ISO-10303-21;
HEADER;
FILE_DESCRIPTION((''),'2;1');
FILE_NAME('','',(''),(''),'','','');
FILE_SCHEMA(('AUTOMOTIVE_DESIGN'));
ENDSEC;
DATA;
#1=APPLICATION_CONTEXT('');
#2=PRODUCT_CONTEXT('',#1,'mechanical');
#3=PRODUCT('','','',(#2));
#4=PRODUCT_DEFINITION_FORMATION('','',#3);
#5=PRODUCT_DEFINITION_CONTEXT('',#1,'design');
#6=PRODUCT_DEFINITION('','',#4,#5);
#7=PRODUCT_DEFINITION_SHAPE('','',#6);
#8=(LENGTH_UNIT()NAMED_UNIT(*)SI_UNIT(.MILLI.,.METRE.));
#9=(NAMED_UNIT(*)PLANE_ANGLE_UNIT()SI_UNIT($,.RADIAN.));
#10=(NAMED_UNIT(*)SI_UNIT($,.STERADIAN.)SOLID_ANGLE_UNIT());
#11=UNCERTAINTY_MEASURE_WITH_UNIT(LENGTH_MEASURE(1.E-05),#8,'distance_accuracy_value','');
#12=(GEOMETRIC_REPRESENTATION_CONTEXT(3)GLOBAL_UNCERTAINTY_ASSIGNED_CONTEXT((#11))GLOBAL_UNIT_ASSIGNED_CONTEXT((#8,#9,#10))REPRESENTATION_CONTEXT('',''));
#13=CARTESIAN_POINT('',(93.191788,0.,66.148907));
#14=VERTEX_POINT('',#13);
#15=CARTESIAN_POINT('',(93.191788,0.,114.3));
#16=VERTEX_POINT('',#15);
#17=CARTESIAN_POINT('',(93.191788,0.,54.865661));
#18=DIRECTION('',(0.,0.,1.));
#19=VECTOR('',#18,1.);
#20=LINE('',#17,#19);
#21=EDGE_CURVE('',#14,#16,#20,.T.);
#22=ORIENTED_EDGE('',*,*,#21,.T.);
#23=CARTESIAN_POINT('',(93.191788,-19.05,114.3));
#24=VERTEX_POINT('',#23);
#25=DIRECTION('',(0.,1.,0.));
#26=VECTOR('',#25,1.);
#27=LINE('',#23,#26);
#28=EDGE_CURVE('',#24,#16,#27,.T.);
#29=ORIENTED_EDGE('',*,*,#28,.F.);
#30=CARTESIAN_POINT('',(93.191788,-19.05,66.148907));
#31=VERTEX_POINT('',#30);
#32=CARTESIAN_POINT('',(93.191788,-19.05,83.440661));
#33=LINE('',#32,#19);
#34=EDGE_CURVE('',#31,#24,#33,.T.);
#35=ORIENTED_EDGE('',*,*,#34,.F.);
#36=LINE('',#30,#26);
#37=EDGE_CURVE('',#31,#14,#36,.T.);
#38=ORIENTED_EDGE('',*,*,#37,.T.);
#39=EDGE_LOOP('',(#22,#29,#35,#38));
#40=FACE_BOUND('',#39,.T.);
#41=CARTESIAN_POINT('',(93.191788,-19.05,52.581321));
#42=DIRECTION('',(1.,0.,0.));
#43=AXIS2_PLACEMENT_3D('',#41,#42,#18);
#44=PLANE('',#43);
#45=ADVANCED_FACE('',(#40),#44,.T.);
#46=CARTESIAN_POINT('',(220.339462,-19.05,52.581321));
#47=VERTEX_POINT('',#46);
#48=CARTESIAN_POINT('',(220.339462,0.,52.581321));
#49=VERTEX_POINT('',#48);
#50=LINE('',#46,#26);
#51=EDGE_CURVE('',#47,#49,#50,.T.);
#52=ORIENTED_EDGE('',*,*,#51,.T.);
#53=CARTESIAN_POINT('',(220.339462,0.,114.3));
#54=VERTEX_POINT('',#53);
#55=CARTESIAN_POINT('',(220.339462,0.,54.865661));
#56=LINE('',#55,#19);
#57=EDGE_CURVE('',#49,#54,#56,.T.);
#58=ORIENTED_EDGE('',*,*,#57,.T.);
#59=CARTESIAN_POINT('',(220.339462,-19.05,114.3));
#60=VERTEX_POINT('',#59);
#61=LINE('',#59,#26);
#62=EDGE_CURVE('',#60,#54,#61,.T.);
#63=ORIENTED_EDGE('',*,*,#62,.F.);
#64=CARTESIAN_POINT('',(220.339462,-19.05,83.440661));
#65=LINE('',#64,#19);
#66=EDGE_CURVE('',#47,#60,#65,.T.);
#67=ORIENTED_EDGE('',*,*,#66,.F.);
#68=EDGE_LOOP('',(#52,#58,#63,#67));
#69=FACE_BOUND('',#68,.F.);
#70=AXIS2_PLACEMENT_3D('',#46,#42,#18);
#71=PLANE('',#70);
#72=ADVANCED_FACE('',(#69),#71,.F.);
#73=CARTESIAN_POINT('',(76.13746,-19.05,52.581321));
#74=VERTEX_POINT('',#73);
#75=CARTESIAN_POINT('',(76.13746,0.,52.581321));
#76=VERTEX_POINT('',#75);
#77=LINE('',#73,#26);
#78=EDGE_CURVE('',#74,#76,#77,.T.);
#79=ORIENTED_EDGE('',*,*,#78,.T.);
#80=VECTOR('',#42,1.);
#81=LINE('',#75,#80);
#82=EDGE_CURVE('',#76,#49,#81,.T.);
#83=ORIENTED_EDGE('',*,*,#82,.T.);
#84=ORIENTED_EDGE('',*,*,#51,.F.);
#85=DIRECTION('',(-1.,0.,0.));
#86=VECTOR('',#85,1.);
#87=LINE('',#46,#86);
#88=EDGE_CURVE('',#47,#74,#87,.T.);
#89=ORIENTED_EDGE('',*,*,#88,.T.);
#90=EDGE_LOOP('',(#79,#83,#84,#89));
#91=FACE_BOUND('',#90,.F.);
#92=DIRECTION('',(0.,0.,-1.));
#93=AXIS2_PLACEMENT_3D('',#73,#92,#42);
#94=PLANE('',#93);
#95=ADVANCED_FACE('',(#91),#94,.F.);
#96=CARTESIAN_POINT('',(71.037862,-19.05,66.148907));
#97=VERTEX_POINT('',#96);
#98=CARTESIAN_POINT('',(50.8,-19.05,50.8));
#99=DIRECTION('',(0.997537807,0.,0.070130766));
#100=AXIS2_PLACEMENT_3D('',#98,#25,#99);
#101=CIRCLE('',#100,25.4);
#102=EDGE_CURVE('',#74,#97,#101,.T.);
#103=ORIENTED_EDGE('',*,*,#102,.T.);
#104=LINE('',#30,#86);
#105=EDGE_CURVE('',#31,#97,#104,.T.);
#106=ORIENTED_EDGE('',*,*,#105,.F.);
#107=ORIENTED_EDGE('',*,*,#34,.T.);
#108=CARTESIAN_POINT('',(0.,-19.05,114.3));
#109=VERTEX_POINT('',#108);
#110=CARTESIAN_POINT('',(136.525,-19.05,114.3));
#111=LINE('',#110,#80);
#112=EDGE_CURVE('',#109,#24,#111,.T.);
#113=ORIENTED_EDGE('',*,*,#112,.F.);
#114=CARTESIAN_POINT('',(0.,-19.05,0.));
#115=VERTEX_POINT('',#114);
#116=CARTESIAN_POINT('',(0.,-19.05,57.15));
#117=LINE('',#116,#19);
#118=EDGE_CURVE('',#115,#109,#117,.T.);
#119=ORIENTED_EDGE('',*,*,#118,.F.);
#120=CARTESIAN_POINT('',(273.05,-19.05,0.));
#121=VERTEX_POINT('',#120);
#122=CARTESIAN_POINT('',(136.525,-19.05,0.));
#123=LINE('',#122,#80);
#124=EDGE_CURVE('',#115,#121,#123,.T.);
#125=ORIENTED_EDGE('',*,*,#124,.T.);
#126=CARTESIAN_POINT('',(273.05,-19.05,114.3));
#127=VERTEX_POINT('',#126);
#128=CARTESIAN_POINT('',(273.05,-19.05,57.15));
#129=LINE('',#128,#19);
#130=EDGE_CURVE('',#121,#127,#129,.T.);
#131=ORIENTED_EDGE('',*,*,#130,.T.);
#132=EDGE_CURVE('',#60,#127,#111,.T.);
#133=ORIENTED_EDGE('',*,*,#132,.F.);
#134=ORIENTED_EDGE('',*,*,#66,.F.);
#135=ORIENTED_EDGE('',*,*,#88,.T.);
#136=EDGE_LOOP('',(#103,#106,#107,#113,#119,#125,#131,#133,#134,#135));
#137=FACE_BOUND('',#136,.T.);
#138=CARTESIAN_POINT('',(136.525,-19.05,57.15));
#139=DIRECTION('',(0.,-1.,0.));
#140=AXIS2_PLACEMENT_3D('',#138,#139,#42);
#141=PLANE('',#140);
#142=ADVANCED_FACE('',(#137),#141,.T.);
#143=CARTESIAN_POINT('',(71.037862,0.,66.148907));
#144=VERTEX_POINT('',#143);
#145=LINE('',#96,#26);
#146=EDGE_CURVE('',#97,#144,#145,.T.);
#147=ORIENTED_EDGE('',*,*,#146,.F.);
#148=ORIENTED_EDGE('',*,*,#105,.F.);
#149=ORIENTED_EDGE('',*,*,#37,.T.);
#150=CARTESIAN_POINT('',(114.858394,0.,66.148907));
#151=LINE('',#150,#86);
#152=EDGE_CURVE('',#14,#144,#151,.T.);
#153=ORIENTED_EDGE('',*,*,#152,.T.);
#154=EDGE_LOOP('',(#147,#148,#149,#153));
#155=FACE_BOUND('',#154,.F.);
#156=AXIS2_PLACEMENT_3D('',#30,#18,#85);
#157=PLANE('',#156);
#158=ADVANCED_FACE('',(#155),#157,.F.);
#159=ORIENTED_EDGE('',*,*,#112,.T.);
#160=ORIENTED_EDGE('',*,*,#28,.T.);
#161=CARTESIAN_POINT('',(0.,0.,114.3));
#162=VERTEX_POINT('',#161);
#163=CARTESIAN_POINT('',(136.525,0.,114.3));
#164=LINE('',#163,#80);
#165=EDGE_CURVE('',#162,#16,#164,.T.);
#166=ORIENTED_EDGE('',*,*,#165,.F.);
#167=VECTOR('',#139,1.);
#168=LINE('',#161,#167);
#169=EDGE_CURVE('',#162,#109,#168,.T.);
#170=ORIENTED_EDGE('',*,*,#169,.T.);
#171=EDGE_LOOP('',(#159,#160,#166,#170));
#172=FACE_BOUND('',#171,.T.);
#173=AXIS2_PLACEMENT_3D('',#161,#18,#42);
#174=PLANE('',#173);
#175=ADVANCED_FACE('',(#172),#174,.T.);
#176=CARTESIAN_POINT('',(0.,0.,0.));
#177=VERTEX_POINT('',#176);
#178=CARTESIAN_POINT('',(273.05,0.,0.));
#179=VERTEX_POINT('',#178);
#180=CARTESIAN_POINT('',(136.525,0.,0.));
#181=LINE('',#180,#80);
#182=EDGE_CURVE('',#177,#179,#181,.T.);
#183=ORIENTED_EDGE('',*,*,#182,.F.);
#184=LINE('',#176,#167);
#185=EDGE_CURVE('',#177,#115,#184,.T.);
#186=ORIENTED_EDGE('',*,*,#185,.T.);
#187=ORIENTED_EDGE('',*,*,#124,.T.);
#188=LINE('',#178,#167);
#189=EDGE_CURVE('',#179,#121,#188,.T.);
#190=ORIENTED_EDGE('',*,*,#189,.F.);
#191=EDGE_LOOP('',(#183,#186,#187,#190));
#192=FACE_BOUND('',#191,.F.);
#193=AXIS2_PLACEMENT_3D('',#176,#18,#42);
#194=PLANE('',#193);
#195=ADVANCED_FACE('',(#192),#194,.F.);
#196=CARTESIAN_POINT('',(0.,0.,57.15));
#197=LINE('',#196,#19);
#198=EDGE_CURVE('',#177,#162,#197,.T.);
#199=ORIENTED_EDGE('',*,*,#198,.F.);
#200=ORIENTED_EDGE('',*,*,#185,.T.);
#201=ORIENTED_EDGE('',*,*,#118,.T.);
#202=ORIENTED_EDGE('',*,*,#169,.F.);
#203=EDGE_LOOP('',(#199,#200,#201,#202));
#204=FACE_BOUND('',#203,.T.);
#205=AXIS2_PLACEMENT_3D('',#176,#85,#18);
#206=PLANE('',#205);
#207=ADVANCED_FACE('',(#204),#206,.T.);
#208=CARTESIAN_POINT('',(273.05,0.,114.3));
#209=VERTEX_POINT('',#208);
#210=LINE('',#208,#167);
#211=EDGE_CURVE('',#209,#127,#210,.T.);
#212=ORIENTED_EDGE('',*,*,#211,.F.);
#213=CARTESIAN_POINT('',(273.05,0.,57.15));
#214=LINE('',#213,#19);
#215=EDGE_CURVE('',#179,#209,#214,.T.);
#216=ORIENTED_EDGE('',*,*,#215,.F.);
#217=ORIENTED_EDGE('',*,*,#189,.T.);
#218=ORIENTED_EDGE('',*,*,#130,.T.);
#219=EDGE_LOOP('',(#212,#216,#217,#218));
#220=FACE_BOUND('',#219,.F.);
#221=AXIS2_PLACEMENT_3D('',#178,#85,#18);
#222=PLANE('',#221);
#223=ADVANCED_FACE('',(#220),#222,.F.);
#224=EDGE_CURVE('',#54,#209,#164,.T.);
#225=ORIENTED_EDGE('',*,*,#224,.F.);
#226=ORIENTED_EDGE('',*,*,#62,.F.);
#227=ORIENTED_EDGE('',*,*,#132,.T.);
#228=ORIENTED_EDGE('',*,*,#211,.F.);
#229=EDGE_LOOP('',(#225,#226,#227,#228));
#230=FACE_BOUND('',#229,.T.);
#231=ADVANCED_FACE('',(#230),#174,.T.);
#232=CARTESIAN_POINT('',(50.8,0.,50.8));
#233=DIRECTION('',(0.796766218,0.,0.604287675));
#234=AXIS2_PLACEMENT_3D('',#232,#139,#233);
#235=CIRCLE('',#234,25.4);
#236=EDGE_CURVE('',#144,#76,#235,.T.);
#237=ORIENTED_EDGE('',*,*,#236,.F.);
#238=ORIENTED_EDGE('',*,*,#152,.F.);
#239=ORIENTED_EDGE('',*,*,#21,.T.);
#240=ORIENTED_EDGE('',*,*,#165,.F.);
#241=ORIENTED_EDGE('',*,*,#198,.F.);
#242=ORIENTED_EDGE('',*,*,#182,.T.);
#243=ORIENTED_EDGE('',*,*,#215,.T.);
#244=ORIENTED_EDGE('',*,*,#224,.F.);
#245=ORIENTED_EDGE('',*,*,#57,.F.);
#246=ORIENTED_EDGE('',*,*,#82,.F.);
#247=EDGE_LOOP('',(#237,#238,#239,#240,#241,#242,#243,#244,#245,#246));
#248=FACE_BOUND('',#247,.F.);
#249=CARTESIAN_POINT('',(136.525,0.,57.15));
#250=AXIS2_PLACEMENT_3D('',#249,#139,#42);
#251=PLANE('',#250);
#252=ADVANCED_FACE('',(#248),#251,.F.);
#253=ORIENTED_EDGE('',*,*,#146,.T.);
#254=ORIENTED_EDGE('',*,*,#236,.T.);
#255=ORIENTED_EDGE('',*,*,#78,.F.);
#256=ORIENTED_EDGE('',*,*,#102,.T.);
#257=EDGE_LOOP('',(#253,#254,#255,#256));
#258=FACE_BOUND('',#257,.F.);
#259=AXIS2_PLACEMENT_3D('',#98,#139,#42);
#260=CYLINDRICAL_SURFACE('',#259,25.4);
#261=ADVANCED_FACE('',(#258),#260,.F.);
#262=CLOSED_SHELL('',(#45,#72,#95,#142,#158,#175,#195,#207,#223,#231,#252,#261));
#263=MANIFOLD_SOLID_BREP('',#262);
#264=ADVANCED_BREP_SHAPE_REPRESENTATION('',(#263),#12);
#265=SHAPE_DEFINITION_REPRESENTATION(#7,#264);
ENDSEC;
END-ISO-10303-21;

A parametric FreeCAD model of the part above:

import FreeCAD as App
import Part
import Sketcher
from FreeCAD import Vector
Q = App.Units.Quantity

doc = App.newDocument("Part")
body = doc.addObject("PartDesign::Body", "Body")

# Sketch on XZ plane
sketch1 = body.newObject("Sketcher::SketchObject", "Sketch")
sketch1.AttachmentSupport = (doc.getObject("XZ_Plane"), [""])
sketch1.MapMode = "FlatFace"
sketch1.addGeometry(Part.LineSegment(Vector(0, 114.3, 0), Vector(0, 0, 0)), False)
sketch1.addGeometry(Part.LineSegment(Vector(0, 0, 0), Vector(273.05, 0, 0)), False)
sketch1.addGeometry(Part.LineSegment(Vector(273.05, 0, 0), Vector(273.05, 114.3, 0)), False)
sketch1.addGeometry(Part.LineSegment(Vector(273.05, 114.3, 0), Vector(0, 114.3, 0)), False)
sketch1.addConstraint(Sketcher.Constraint("Coincident", 0, 2, 1, 1))
sketch1.addConstraint(Sketcher.Constraint("Coincident", 1, 2, 2, 1))
sketch1.addConstraint(Sketcher.Constraint("Coincident", 2, 2, 3, 1))
sketch1.addConstraint(Sketcher.Constraint("Coincident", 3, 2, 0, 1))
sketch1.addConstraint(Sketcher.Constraint("Vertical", 0))
sketch1.addConstraint(Sketcher.Constraint("Horizontal", 1))
sketch1.addConstraint(Sketcher.Constraint("Vertical", 2))
sketch1.addConstraint(Sketcher.Constraint("Horizontal", 3))
sketch1.addConstraint(Sketcher.Constraint("Coincident", 0, 2, -1, 1))
sketch1.addConstraint(Sketcher.Constraint("DistanceY", 0, 2, 0, 1, Q("4.5 in")))
sketch1.addConstraint(Sketcher.Constraint("DistanceX", 1, 1, 1, 2, Q("10.75 in")))
pad1 = body.newObject("PartDesign::Pad", "Pad")
pad1.Profile = sketch1
pad1.Length = Q("0.75 in")

# Sketch on XZ plane
sketch2 = body.newObject("Sketcher::SketchObject", "Sketch001")
sketch2.AttachmentSupport = (doc.getObject("XZ_Plane"), [""])
sketch2.MapMode = "FlatFace"
sketch2.AttachmentOffset = App.Placement(Vector(0, 0, 0.75 * 25.4), App.Rotation())
sketch2.addGeometry(Part.Circle(Vector(50.8, 50.8, 0), Vector(0, 0, 1), 25.4), False)
sketch2.addConstraint(Sketcher.Constraint("Diameter", 0, Q("2 in")))
sketch2.addConstraint(Sketcher.Constraint("DistanceX", -1, 1, 0, 3, Q("2 in")))
sketch2.addConstraint(Sketcher.Constraint("DistanceY", -1, 1, 0, 3, Q("2 in")))
pocket1 = body.newObject("PartDesign::Pocket", "Pocket")
pocket1.Profile = sketch2
pocket1.Length = Q("1 in")

# Sketch on XZ plane
sketch3 = body.newObject("Sketcher::SketchObject", "Sketch002")
sketch3.AttachmentSupport = (doc.getObject("XZ_Plane"), [""])
sketch3.MapMode = "FlatFace"
sketch3.AttachmentOffset = App.Placement(Vector(0, 0, 0.75 * 25.4), App.Rotation())
sketch3.addGeometry(Part.LineSegment(Vector(93.191788, 114.3, 0), Vector(93.191788, 52.581321, 0)), False)
sketch3.addGeometry(Part.LineSegment(Vector(93.191788, 52.581321, 0), Vector(220.339462, 52.581321, 0)), False)
sketch3.addGeometry(Part.LineSegment(Vector(220.339462, 52.581321, 0), Vector(220.339462, 114.3, 0)), False)
sketch3.addGeometry(Part.LineSegment(Vector(220.339462, 114.3, 0), Vector(93.191788, 114.3, 0)), False)
sketch3.addConstraint(Sketcher.Constraint("Coincident", 0, 2, 1, 1))
sketch3.addConstraint(Sketcher.Constraint("Coincident", 1, 2, 2, 1))
sketch3.addConstraint(Sketcher.Constraint("Coincident", 2, 2, 3, 1))
sketch3.addConstraint(Sketcher.Constraint("Coincident", 3, 2, 0, 1))
sketch3.addConstraint(Sketcher.Constraint("Vertical", 0))
sketch3.addConstraint(Sketcher.Constraint("Horizontal", 1))
sketch3.addConstraint(Sketcher.Constraint("Vertical", 2))
sketch3.addConstraint(Sketcher.Constraint("Horizontal", 3))
sketch3.addConstraint(Sketcher.Constraint("DistanceY", -1, 1, 2, 2, Q("4.5 in")))
sketch3.addConstraint(Sketcher.Constraint("DistanceY", 0, 2, 0, 1, 61.718679))
sketch3.addConstraint(Sketcher.Constraint("DistanceX", 1, 1, 1, 2, 127.147675))
sketch3.addConstraint(Sketcher.Constraint("DistanceX", -1, 1, 0, 2, 93.191788))
pocket2 = body.newObject("PartDesign::Pocket", "Pocket001")
pocket2.Profile = sketch3
pocket2.Length = Q("1 in")

# Sketch on XZ plane
sketch4 = body.newObject("Sketcher::SketchObject", "Sketch003")
sketch4.AttachmentSupport = (doc.getObject("XZ_Plane"), [""])
sketch4.MapMode = "FlatFace"
sketch4.AttachmentOffset = App.Placement(Vector(0, 0, 0.75 * 25.4), App.Rotation())
sketch4.addGeometry(Part.LineSegment(Vector(93.191788, 52.581321, 0), Vector(93.191788, 66.148907, 0)), False)
sketch4.addGeometry(Part.LineSegment(Vector(93.191788, 66.148907, 0), Vector(71.037862, 66.148907, 0)), False)
sketch4.addGeometry(Part.LineSegment(Vector(71.037862, 66.148907, 0), Vector(76.13746, 52.581321, 0)), False)
sketch4.addGeometry(Part.LineSegment(Vector(76.13746, 52.581321, 0), Vector(93.191788, 52.581321, 0)), False)
sketch4.addConstraint(Sketcher.Constraint("Coincident", 0, 2, 1, 1))
sketch4.addConstraint(Sketcher.Constraint("Coincident", 1, 2, 2, 1))
sketch4.addConstraint(Sketcher.Constraint("Coincident", 2, 2, 3, 1))
sketch4.addConstraint(Sketcher.Constraint("Coincident", 3, 2, 0, 1))
sketch4.addConstraint(Sketcher.Constraint("Vertical", 0))
sketch4.addConstraint(Sketcher.Constraint("Horizontal", 1))
sketch4.addConstraint(Sketcher.Constraint("Horizontal", 3))
sketch4.addConstraint(Sketcher.Constraint("DistanceX", 1, 2, 2, 2, 5.099598))
sketch4.addConstraint(Sketcher.Constraint("Distance", 2, 14.494319))
sketch4.addConstraint(Sketcher.Constraint("DistanceX", 1, 2, 1, 1, 22.153926))
sketch4.addConstraint(Sketcher.Constraint("DistanceX", -1, 1, 1, 2, 71.037862))
sketch4.addConstraint(Sketcher.Constraint("DistanceY", -1, 1, 2, 2, 52.581321))
pocket3 = body.newObject("PartDesign::Pocket", "Pocket002")
pocket3.Profile = sketch4
pocket3.Length = Q("1 in")

doc.recompute()
